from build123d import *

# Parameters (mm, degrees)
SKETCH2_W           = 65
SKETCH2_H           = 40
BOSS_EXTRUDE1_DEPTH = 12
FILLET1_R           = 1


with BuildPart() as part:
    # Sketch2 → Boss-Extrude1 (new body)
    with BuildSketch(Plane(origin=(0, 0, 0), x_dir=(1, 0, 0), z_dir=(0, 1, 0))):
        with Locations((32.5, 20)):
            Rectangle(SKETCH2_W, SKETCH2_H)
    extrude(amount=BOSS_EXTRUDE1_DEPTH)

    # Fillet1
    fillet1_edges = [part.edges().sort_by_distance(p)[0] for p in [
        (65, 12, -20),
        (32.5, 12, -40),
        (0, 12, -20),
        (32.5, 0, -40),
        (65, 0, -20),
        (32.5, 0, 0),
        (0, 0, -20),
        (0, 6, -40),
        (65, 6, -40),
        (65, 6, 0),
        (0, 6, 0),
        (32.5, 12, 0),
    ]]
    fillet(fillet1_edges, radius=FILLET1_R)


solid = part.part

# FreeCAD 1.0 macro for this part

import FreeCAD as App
import Part
import Sketcher

V = App.Vector
Q = App.Units.Quantity

doc = App.newDocument("Part")
body = doc.addObject("PartDesign::Body", "Body")

# Sketch on XZ plane
sketch1 = body.newObject("Sketcher::SketchObject", "Sketch")
sketch1.AttachmentSupport = (doc.getObject("XZ_Plane"), [""])
sketch1.MapMode = "FlatFace"
sketch1.addGeometry([
    Part.LineSegment(V(0, -40, 0), V(0, 0, 0)),
    Part.LineSegment(V(0, 0, 0), V(65, 0, 0)),
    Part.LineSegment(V(65, 0, 0), V(65, -40, 0)),
    Part.LineSegment(V(65, -40, 0), V(0, -40, 0)),
], False)
sketch1.addConstraint([
    Sketcher.Constraint("Coincident", 0, 2, 1, 1),
    Sketcher.Constraint("Coincident", 1, 2, 2, 1),
    Sketcher.Constraint("Coincident", 2, 2, 3, 1),
    Sketcher.Constraint("Coincident", 3, 2, 0, 1),
    Sketcher.Constraint("Vertical", 0),
    Sketcher.Constraint("Horizontal", 1),
    Sketcher.Constraint("Vertical", 2),
    Sketcher.Constraint("Horizontal", 3),
    Sketcher.Constraint("Coincident", 0, 2, -1, 1),
    Sketcher.Constraint("DistanceX", 1, 1, 1, 2, Q("65 mm")),
    Sketcher.Constraint("DistanceY", 0, 1, 0, 2, Q("40 mm")),
])
pad1 = body.newObject("PartDesign::Pad", "Pad")
pad1.Profile = sketch1
pad1.Length = 12
pad1.Reversed = True
doc.recompute()

fillet = body.newObject("PartDesign::Fillet", "Fillet")
fillet.Base = (pad1, ["Edge1"])
fillet.UseAllEdges = True
fillet.Radius = 1

doc.recompute()
